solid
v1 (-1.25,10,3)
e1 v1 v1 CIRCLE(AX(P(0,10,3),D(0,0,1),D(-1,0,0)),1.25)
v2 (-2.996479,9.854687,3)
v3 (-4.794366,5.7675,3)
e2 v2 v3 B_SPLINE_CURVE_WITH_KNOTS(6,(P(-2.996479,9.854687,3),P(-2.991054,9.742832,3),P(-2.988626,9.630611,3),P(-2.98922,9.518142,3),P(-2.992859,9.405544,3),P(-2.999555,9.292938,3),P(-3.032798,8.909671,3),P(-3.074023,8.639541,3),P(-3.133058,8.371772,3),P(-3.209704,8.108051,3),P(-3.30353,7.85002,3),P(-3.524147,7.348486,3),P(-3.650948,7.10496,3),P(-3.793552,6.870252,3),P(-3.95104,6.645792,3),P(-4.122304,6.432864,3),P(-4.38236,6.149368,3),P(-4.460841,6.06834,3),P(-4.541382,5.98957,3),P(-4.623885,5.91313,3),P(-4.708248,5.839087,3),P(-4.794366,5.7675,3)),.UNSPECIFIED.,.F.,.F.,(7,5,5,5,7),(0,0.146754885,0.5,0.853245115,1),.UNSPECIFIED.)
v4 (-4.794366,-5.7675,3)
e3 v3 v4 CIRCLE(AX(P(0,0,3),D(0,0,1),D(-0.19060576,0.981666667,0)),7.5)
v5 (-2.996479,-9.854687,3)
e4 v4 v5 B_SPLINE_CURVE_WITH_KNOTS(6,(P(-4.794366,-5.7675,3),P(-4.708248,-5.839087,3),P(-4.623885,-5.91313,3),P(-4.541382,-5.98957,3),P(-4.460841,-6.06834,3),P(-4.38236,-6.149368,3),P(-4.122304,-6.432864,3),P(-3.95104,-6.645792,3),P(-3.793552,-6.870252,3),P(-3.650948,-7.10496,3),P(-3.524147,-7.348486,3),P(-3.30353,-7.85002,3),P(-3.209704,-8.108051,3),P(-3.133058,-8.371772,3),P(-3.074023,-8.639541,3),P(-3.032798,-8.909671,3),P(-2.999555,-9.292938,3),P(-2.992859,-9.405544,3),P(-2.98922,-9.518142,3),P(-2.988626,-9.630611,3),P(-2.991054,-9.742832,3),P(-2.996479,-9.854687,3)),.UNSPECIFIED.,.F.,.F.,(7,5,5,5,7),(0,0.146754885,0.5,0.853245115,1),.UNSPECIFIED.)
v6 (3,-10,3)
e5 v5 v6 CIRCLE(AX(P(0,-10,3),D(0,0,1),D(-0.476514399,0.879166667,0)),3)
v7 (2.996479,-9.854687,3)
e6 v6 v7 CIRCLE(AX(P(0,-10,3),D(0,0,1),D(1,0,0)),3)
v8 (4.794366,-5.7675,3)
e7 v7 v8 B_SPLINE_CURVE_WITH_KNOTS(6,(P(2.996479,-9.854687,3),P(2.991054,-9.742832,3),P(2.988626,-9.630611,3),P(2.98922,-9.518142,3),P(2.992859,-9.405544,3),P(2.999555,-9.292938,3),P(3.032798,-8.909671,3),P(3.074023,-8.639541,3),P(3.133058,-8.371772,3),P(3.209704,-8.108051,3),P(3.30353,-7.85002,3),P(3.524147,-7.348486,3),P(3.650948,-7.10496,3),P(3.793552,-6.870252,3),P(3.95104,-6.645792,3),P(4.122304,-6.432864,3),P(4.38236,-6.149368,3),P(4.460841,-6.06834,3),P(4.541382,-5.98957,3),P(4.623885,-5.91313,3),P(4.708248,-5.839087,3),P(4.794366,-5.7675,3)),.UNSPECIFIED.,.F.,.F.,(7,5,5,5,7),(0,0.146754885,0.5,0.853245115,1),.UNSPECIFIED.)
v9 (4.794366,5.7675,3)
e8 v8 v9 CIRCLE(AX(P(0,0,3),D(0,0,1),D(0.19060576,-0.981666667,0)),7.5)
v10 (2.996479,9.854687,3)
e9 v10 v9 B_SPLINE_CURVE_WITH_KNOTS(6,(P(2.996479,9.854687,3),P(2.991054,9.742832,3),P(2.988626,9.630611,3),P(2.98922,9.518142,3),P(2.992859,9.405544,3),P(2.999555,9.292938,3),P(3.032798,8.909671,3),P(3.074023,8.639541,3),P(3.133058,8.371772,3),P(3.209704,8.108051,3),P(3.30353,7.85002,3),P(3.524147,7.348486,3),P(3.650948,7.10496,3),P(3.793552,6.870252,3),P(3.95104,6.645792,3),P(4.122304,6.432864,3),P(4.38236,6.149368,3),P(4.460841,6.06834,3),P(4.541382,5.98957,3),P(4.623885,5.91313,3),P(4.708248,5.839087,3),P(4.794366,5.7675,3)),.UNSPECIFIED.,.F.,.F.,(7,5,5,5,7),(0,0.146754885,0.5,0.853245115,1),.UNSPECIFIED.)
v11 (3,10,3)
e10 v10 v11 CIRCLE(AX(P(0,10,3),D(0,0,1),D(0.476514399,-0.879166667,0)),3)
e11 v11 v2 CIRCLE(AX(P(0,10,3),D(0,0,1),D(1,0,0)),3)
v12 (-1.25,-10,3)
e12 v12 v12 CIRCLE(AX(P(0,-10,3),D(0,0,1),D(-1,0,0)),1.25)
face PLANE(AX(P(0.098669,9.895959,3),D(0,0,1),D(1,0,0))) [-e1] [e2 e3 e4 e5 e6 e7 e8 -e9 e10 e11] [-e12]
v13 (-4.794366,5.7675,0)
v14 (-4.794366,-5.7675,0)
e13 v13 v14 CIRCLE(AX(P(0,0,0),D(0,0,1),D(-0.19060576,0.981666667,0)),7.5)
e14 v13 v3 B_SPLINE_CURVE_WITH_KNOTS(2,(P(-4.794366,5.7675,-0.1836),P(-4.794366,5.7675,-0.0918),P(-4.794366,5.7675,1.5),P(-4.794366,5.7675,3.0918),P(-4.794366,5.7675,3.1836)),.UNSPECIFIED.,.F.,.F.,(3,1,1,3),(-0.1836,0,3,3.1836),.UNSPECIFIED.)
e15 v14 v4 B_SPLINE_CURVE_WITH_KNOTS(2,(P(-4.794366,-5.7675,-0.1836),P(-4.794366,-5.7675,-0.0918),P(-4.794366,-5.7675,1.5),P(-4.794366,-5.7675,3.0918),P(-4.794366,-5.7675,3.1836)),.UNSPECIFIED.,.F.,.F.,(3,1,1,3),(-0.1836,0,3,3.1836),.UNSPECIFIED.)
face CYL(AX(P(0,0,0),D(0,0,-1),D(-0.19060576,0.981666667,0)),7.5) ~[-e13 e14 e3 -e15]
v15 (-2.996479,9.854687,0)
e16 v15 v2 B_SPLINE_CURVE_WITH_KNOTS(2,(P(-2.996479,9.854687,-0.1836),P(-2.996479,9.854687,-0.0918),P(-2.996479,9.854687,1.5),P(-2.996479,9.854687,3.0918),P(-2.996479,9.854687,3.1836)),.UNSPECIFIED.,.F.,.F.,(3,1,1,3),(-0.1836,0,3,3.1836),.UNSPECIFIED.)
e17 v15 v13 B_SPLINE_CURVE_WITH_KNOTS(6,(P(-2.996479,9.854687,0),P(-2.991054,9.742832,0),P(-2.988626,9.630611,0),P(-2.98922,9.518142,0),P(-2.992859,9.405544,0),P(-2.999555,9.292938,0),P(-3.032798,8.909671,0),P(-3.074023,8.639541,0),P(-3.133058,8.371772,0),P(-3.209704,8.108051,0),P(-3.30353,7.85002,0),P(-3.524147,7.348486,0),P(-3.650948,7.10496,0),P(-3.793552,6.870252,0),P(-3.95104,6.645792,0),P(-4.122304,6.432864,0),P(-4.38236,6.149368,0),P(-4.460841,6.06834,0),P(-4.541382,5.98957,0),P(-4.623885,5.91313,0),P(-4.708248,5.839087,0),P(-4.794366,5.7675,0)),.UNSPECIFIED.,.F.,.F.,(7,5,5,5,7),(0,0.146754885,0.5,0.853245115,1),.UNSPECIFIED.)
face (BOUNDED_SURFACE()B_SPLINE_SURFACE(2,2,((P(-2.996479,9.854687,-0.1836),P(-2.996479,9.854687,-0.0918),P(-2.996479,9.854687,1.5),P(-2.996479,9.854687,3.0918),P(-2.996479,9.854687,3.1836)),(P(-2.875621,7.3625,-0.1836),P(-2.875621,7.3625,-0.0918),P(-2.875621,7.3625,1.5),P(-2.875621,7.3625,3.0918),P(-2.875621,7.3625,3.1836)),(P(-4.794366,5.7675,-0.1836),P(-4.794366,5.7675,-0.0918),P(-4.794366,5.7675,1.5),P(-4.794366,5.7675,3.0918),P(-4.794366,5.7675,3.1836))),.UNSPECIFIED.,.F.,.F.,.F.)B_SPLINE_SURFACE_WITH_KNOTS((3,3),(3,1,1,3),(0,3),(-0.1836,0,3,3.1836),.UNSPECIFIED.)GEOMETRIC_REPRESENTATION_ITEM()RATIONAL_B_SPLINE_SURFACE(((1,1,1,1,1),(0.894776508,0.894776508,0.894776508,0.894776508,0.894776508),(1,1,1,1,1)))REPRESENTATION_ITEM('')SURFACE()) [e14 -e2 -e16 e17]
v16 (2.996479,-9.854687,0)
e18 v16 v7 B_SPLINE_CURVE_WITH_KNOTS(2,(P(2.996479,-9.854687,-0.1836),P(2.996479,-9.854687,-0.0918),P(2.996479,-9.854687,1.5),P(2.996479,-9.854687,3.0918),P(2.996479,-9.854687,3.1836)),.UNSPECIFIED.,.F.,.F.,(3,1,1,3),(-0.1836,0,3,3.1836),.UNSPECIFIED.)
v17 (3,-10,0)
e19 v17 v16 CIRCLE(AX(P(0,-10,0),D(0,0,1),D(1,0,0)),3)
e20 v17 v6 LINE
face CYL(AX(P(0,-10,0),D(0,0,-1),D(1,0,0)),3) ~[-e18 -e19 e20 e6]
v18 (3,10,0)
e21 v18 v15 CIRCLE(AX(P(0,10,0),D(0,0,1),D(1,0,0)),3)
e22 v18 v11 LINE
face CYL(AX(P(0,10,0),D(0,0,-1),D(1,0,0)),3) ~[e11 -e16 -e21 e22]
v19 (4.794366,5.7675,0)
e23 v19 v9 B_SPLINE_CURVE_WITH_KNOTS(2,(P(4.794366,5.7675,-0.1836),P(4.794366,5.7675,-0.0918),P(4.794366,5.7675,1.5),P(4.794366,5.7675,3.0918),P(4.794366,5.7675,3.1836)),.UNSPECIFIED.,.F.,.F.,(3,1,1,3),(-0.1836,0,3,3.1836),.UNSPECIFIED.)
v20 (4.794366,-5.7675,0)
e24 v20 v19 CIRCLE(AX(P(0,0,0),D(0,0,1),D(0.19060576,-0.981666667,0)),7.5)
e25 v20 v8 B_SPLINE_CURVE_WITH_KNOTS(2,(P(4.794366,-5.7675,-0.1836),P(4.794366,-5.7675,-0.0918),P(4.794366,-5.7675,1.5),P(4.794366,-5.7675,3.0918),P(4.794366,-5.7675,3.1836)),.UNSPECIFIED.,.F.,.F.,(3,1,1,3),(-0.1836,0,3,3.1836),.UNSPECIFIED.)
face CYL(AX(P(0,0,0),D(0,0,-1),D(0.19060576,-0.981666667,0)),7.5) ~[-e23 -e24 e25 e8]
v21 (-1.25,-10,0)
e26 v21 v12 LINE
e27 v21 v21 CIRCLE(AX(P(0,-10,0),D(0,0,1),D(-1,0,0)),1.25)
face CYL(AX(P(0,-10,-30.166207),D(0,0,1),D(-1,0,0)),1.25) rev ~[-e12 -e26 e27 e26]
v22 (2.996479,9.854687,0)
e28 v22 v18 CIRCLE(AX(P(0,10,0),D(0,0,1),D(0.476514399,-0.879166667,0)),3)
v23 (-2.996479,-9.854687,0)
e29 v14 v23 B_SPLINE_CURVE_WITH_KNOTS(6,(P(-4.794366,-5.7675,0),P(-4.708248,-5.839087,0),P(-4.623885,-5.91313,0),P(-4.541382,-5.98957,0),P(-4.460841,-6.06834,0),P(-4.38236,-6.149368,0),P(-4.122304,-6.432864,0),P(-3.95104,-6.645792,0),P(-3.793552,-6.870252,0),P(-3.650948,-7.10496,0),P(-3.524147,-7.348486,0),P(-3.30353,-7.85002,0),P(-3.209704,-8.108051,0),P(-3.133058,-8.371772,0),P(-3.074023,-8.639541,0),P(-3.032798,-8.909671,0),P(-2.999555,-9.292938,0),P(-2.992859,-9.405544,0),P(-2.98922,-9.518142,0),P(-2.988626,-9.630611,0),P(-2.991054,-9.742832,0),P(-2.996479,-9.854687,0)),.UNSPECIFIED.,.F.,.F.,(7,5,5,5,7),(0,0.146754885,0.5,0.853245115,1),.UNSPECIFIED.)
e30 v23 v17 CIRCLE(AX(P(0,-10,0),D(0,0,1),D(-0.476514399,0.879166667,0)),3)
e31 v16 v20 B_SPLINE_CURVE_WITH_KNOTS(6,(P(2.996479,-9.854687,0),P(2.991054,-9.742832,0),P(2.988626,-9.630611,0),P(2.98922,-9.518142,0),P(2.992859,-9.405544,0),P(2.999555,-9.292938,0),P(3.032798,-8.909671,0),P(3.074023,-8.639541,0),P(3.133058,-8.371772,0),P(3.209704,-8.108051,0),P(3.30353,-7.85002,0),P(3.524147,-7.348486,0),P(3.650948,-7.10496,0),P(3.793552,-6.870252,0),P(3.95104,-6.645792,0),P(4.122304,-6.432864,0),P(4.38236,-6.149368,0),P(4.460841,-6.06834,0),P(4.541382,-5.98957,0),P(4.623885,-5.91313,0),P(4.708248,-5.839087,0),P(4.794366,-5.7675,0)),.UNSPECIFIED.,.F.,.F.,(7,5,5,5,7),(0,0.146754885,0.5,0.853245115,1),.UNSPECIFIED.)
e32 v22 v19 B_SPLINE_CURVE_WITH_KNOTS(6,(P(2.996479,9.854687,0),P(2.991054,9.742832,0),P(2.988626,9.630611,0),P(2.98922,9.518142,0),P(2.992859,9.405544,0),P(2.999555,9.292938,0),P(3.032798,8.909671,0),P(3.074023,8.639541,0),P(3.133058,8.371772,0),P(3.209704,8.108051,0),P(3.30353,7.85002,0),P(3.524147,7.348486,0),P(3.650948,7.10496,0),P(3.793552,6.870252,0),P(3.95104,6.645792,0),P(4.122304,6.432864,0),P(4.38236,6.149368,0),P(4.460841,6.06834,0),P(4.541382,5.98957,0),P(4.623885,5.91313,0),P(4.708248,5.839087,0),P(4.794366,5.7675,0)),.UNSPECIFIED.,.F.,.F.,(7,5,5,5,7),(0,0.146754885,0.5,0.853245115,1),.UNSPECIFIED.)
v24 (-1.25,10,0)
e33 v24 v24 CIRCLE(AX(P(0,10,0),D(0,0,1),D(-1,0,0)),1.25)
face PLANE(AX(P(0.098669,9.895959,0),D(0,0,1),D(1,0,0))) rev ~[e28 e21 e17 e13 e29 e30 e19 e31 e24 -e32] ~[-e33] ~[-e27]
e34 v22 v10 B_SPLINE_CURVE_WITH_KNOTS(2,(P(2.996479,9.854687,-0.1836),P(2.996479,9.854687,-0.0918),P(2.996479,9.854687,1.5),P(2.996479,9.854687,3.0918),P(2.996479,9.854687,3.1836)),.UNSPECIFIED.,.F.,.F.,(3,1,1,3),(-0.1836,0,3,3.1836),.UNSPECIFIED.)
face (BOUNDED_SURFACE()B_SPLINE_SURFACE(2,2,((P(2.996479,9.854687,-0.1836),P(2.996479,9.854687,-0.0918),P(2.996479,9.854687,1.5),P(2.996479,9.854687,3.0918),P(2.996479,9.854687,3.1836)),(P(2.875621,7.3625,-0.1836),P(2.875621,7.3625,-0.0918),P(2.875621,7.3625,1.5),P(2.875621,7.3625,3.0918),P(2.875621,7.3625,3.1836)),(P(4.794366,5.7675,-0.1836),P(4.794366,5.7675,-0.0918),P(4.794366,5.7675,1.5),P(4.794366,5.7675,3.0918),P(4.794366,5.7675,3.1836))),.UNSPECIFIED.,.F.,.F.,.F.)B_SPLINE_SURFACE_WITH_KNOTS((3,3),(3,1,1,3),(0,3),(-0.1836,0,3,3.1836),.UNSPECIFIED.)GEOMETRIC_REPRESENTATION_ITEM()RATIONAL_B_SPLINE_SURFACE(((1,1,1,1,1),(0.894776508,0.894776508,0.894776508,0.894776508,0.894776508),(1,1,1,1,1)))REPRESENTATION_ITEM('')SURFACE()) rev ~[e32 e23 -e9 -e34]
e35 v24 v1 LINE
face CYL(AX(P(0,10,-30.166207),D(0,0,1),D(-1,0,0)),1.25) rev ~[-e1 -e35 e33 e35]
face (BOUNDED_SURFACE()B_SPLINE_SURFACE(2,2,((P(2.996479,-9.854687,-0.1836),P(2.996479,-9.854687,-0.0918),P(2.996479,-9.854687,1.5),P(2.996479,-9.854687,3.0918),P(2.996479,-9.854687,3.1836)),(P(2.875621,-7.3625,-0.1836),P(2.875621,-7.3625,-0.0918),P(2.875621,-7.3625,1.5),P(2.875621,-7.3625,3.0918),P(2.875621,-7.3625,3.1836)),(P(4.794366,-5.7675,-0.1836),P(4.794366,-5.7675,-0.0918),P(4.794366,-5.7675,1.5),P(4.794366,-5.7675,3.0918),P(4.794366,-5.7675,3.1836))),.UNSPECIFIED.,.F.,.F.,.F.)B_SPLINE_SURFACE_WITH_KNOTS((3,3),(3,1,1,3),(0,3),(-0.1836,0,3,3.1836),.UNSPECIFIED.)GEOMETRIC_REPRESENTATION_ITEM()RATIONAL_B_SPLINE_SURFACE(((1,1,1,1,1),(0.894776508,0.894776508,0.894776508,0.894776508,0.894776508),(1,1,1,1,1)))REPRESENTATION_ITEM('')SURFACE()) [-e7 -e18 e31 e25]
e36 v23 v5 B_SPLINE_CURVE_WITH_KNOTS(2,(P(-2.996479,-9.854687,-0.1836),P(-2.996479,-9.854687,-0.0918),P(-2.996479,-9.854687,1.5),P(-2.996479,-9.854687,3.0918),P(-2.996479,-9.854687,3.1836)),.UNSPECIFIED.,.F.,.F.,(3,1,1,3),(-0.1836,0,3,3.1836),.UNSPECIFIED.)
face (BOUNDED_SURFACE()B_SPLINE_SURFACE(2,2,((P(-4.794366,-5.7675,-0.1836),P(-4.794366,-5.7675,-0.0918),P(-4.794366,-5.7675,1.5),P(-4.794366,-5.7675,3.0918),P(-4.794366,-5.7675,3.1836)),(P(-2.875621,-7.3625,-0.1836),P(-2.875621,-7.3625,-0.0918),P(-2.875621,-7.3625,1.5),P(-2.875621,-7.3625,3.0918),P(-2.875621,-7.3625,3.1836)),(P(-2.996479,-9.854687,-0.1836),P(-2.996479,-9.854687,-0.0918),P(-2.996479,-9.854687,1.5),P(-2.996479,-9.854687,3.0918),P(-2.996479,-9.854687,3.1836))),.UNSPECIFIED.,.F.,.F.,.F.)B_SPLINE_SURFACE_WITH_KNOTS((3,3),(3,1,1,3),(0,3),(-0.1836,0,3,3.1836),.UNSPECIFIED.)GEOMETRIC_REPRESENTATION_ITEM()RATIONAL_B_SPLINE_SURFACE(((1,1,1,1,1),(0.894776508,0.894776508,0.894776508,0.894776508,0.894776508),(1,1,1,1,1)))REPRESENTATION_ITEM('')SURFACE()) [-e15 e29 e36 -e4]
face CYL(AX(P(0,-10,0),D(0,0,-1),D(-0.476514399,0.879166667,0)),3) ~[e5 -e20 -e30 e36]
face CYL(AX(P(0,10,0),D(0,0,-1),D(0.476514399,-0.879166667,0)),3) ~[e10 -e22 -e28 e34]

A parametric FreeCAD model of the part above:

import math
import FreeCAD as App
import Part
import Sketcher


def edges_at(feature, points):
    """Names of the edges that pass closest to the given points."""
    edges = feature.Shape.Edges
    near = lambda p: min(range(len(edges)), key=lambda i: edges[i].distToShape(Part.Vertex(*p))[0])
    return sorted({f"Edge{near(p) + 1}" for p in points})

doc = App.newDocument("Part")
body = doc.addObject("PartDesign::Body", "Body")

sketch1 = body.newObject("Sketcher::SketchObject", "Sketch")
sketch1.AttachmentSupport = (doc.getObject("XY_Plane"), [""])
sketch1.MapMode = "FlatFace"
sketch1.addGeometry(Part.ArcOfCircle(Part.Circle(App.Vector(0, 10, 0), App.Vector(0, 0, 1), 3), math.radians(-62), math.radians(0)), False)
sketch1.addGeometry(Part.ArcOfCircle(Part.Circle(App.Vector(0, 10, 0), App.Vector(0, 0, 1), 3), math.radians(0), math.radians(242)), False)
sketch1.addGeometry(Part.ArcOfCircle(Part.Circle(App.Vector(0, 0, 0), App.Vector(0, 0, 1), 7.5), math.radians(101), math.radians(259)), False)
sketch1.addGeometry(Part.ArcOfCircle(Part.Circle(App.Vector(0, -10, 0), App.Vector(0, 0, 1), 3), math.radians(118), math.radians(360)), False)
sketch1.addGeometry(Part.ArcOfCircle(Part.Circle(App.Vector(0, -10, 0), App.Vector(0, 0, 1), 3), math.radians(0), math.radians(62)), False)
sketch1.addGeometry(Part.ArcOfCircle(Part.Circle(App.Vector(0, 0, 0), App.Vector(0, 0, 1), 7.5), math.radians(-79), math.radians(79)), False)
sketch1.addConstraint(Sketcher.Constraint("Tangent", 0, 2, 1, 1))
sketch1.addConstraint(Sketcher.Constraint("Coincident", 1, 2, 2, 1))
sketch1.addConstraint(Sketcher.Constraint("Coincident", 2, 2, 3, 1))
sketch1.addConstraint(Sketcher.Constraint("Tangent", 3, 2, 4, 1))
sketch1.addConstraint(Sketcher.Constraint("Coincident", 4, 2, 5, 1))
sketch1.addConstraint(Sketcher.Constraint("Coincident", 5, 2, 0, 1))
sketch1.addConstraint(Sketcher.Constraint("Coincident", 2, 3, -1, 1))
sketch1.addConstraint(Sketcher.Constraint("Coincident", 5, 3, -1, 1))
sketch1.addConstraint(Sketcher.Constraint("Equal", 0, 1))
sketch1.addConstraint(Sketcher.Constraint("Equal", 1, 3))
sketch1.addConstraint(Sketcher.Constraint("Equal", 3, 4))
sketch1.addConstraint(Sketcher.Constraint("Equal", 2, 5))
sketch1.addConstraint(Sketcher.Constraint("Symmetric", 0, 3, 3, 3, -1, 1))
sketch1.addConstraint(Sketcher.Constraint("Symmetric", 0, 2, 3, 2, -1))
sketch1.addConstraint(Sketcher.Constraint("Horizontal", 1, 3, 0, 2))
sketch1.addConstraint(Sketcher.Constraint("Radius", 0, 3.0))
sketch1.addConstraint(Sketcher.Constraint("Radius", 2, 7.5))
sketch1.addConstraint(Sketcher.Constraint("DistanceY", -1, 1, 0, 3, 10.0))
pad1 = body.newObject("PartDesign::Pad", "Pad")
pad1.Profile = sketch1
pad1.Length = 3
doc.recompute()

fillet = body.newObject("PartDesign::Fillet", "Fillet")
fillet.Base = (pad1, edges_at(pad1, [
    (-1.43, -7.362, 1.5),
    (1.43, -7.362, 1.5),
    (-1.43, 7.362, 1.5),
    (1.43, 7.362, 1.5),
]))
fillet.Radius = 5

sketch2 = body.newObject("Sketcher::SketchObject", "Sketch001")
sketch2.AttachmentSupport = (doc.getObject("XY_Plane"), [""])
sketch2.MapMode = "FlatFace"
sketch2.addGeometry(Part.Circle(App.Vector(0, -10, 0), App.Vector(0, 0, 1), 1.2), False)
sketch2.addGeometry(Part.Circle(App.Vector(0, 10, 0), App.Vector(0, 0, 1), 1.2), False)
sketch2.addConstraint(Sketcher.Constraint("Equal", 0, 1))
sketch2.addConstraint(Sketcher.Constraint("Symmetric", 0, 3, 1, 3, -1, 1))
sketch2.addConstraint(Sketcher.Constraint("PointOnObject", 0, 3, -2))
sketch2.addConstraint(Sketcher.Constraint("Diameter", 0, 2.5))
sketch2.addConstraint(Sketcher.Constraint("DistanceY", 0, 3, -1, 1, 10.0))
doc.recompute()
hole = body.newObject("PartDesign::Hole", "Hole")
hole.Profile = sketch2
hole.ThreadType = "None"
hole.Diameter = 2.5
hole.DepthType = "ThroughAll"
hole.Reversed = True

doc.recompute()
